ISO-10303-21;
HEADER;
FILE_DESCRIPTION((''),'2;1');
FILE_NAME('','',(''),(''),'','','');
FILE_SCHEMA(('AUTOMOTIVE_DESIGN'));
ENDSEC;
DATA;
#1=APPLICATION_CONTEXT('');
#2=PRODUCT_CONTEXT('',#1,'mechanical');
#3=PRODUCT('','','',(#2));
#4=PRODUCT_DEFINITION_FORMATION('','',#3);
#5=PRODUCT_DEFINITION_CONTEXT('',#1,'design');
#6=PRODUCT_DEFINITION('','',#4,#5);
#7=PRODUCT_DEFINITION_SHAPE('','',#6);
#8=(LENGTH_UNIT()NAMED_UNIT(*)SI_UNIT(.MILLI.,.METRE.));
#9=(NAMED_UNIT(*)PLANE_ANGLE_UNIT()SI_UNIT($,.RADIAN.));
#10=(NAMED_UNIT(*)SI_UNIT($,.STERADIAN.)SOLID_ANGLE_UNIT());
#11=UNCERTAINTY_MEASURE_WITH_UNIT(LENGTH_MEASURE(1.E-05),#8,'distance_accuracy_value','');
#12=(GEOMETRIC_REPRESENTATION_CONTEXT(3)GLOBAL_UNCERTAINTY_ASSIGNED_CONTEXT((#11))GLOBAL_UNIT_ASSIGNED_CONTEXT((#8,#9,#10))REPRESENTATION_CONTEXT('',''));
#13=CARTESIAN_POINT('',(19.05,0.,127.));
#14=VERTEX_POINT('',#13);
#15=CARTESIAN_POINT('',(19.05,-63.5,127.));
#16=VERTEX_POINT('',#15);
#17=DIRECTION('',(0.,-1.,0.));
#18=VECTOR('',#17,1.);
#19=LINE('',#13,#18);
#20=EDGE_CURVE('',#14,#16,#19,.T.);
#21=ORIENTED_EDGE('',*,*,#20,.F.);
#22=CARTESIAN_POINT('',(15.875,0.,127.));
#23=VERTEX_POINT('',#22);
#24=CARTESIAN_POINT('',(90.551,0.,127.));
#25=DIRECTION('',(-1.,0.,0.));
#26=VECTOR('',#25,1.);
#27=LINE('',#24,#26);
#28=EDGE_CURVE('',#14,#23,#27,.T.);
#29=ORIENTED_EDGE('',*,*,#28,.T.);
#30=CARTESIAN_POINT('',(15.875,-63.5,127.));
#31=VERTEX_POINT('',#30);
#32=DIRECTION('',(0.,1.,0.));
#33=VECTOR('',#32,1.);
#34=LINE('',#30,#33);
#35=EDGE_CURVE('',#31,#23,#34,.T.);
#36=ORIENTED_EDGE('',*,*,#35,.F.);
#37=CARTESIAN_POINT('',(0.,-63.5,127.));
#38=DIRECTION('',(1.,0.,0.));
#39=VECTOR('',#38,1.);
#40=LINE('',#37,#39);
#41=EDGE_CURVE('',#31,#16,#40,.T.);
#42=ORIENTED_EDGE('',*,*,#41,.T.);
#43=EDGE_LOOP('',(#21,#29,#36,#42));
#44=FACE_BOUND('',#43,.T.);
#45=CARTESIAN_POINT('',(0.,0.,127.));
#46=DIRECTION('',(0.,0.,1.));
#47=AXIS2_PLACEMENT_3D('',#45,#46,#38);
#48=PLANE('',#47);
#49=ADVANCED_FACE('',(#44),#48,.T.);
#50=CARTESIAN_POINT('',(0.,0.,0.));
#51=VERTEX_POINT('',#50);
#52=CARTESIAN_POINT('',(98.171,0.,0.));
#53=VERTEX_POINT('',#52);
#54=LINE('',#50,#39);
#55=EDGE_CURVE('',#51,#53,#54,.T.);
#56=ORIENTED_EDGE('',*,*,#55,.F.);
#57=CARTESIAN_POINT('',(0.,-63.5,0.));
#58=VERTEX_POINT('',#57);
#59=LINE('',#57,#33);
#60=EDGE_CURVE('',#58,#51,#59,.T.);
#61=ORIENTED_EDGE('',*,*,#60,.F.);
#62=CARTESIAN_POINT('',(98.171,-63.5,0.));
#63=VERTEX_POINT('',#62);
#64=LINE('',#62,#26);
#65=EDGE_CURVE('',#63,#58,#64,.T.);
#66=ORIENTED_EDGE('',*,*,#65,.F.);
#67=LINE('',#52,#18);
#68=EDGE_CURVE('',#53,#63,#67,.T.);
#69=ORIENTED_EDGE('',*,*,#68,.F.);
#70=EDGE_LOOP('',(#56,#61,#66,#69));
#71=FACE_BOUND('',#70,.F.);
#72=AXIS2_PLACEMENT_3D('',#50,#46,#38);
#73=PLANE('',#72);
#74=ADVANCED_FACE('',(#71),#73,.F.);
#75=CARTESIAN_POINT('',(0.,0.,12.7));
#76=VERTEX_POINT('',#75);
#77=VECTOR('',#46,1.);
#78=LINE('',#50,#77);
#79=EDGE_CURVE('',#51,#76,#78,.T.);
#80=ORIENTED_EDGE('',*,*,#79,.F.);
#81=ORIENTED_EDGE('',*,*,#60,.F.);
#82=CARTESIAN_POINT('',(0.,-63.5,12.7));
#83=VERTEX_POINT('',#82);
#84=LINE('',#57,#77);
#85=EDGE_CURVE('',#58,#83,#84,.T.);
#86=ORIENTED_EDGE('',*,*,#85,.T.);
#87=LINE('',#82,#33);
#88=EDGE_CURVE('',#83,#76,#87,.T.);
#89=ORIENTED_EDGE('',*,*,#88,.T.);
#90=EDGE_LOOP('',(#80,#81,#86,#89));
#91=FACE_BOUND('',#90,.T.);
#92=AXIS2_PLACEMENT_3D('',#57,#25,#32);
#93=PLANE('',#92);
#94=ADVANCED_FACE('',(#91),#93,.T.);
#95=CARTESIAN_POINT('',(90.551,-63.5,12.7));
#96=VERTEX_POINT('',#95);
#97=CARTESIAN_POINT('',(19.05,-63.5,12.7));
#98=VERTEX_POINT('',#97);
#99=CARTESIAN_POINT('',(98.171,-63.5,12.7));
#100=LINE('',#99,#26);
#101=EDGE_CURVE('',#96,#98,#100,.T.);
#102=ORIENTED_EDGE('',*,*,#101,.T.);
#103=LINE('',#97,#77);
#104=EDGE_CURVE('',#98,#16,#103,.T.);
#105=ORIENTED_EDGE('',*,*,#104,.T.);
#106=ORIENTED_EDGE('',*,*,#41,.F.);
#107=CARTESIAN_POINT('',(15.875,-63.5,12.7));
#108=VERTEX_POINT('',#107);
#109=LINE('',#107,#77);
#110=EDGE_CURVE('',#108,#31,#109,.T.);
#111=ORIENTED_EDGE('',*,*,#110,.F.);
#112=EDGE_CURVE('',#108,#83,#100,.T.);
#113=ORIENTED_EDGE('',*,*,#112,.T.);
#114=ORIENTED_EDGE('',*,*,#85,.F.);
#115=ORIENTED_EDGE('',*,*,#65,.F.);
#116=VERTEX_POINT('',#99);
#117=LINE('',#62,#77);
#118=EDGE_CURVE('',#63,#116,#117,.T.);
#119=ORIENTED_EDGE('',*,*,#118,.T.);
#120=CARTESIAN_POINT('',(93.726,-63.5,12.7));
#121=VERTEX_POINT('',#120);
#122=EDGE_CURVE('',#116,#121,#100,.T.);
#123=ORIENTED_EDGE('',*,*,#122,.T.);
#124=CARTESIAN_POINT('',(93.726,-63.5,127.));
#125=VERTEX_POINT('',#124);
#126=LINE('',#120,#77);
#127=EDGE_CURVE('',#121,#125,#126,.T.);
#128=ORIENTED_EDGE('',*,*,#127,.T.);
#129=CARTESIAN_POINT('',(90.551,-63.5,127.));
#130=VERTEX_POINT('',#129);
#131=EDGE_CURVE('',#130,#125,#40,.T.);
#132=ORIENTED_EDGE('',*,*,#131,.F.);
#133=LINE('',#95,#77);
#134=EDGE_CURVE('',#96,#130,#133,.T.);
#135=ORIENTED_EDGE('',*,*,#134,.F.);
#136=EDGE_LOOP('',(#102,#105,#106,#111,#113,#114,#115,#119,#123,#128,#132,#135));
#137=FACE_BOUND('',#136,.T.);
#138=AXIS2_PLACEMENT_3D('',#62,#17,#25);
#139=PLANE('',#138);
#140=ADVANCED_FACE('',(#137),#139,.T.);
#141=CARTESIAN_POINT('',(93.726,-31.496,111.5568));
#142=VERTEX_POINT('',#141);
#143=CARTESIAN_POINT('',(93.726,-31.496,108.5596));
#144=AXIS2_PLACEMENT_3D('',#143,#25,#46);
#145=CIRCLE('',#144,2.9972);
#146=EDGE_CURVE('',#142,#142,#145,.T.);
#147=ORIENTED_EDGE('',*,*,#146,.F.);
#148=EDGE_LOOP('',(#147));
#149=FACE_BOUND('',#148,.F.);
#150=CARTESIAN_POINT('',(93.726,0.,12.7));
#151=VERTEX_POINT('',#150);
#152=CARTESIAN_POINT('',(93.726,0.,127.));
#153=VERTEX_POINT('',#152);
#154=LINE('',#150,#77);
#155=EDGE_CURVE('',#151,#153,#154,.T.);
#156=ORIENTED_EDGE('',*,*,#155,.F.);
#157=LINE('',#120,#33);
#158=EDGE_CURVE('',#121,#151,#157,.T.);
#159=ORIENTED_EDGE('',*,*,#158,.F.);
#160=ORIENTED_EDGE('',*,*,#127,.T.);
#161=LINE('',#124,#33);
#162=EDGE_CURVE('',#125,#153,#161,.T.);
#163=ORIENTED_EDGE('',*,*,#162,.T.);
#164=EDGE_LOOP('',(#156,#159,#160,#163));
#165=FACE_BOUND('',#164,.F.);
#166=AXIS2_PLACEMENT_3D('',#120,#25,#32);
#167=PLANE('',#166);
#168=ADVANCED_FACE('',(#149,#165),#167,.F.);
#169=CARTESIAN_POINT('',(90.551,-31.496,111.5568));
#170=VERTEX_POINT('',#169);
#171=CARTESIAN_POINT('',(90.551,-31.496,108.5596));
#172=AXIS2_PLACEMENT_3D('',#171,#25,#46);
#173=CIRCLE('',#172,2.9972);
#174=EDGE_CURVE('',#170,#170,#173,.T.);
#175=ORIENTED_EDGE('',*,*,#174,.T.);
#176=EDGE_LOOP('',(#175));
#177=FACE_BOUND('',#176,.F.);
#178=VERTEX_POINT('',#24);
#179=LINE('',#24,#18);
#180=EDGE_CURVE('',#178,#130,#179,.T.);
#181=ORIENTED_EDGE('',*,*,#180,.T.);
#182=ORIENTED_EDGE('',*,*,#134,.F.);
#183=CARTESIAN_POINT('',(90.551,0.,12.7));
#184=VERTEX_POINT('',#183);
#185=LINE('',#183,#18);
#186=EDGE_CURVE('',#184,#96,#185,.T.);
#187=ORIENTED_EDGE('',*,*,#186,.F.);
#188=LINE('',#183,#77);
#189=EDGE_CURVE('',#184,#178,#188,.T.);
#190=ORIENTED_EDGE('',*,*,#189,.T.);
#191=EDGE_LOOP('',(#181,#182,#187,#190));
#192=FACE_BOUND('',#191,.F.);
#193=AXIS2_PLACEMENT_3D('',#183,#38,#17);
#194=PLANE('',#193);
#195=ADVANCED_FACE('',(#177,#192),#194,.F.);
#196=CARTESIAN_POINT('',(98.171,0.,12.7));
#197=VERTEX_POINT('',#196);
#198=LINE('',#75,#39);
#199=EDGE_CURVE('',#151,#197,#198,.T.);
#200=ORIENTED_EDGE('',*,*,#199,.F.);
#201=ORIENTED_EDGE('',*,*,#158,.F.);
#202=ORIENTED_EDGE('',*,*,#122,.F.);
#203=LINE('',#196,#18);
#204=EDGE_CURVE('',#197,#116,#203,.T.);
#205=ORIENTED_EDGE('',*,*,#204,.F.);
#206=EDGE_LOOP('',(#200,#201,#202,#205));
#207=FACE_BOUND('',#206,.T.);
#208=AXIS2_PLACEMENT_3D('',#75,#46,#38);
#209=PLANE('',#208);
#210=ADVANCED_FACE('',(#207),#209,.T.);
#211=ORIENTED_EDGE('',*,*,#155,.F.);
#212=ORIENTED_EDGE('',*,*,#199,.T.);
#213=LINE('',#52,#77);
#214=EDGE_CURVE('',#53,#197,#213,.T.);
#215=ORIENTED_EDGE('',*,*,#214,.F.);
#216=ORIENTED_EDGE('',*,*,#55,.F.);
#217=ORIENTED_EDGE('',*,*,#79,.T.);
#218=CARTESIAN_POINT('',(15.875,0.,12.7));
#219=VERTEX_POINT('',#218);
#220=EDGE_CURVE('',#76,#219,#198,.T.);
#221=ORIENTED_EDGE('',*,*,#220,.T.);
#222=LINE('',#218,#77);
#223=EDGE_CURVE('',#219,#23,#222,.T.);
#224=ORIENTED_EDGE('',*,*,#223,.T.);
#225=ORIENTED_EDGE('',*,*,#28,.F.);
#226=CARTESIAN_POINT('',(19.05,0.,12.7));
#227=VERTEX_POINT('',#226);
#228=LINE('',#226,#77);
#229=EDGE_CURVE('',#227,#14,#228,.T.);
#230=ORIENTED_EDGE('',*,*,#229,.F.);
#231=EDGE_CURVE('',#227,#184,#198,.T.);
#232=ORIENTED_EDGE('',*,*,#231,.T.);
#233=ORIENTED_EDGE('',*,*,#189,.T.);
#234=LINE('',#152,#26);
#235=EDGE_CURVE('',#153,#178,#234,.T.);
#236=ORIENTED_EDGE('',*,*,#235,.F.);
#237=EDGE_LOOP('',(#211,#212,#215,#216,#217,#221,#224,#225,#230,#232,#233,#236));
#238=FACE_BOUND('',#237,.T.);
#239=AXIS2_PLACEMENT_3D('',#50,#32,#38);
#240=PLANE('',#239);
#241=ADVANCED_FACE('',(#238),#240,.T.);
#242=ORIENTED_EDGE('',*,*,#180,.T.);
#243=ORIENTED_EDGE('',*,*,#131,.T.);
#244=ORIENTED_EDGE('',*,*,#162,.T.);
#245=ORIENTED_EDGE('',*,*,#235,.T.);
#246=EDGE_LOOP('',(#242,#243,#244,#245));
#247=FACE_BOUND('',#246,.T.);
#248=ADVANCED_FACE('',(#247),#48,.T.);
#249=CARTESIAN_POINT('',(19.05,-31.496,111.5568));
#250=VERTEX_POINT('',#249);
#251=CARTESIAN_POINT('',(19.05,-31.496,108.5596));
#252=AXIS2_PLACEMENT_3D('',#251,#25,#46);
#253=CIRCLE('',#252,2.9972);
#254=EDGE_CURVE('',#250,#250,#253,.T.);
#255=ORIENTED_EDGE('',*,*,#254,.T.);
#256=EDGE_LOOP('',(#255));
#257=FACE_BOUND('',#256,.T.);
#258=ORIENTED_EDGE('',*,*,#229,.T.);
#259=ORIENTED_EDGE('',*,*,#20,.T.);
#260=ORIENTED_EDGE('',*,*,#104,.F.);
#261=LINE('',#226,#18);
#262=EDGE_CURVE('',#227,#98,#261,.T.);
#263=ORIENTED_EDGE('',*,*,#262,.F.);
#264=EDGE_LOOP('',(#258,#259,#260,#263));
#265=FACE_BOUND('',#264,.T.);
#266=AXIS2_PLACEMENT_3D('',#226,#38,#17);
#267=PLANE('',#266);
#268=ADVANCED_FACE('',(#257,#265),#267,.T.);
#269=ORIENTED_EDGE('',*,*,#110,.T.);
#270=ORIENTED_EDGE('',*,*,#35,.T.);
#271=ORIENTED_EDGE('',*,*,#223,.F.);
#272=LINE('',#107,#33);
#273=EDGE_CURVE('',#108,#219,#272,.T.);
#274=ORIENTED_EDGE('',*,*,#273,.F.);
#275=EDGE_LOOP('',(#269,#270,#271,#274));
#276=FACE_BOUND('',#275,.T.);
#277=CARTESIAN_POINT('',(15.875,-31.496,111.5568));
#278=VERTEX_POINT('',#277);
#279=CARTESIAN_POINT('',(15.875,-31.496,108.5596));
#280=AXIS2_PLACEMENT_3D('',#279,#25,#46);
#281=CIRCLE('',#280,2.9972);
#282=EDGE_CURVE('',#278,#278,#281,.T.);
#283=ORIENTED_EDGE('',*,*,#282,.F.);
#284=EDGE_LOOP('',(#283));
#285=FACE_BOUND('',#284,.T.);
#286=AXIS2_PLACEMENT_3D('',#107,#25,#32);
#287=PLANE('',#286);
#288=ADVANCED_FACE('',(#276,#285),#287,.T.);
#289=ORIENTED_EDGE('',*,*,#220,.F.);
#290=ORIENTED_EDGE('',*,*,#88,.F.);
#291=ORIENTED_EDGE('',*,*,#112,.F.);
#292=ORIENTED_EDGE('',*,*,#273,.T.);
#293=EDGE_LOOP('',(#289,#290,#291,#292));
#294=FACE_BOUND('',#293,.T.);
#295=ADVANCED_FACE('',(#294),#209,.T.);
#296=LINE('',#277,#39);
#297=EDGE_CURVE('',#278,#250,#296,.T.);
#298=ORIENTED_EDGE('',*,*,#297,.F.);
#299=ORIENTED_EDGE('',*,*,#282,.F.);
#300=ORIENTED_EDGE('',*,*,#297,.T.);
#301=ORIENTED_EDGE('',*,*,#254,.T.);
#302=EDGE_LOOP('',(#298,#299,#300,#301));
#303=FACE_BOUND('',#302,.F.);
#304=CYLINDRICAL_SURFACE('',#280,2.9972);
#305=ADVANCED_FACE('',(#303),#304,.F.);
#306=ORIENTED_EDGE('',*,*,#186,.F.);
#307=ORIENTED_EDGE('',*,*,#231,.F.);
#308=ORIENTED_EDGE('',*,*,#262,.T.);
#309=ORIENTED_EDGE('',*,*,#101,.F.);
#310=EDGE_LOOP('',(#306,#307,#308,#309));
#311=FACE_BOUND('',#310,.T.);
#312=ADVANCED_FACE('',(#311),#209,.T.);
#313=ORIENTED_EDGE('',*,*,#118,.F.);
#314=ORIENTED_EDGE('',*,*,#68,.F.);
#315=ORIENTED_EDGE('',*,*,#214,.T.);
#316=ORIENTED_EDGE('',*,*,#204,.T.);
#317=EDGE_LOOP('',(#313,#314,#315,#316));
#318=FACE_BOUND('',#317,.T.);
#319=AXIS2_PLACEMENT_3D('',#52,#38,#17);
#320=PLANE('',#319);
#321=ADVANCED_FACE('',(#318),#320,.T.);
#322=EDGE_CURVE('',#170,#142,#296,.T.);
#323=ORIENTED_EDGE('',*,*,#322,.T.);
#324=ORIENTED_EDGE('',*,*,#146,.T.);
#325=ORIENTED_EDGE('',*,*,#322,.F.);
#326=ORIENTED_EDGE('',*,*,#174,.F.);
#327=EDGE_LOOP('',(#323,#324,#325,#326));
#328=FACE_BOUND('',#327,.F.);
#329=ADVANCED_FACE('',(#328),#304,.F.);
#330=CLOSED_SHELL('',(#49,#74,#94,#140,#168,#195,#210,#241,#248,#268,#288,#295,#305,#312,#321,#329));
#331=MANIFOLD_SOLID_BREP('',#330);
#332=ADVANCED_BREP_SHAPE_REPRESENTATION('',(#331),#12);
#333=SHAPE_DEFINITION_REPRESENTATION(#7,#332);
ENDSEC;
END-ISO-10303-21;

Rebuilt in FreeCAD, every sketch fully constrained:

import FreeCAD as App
import Part
import Sketcher
from FreeCAD import Vector
Q = App.Units.Quantity

doc = App.newDocument("Part")
body = doc.addObject("PartDesign::Body", "Body")

# Sketch on XY plane
sketch1 = body.newObject("Sketcher::SketchObject", "Sketch")
sketch1.AttachmentSupport = (doc.getObject("XY_Plane"), [""])
sketch1.MapMode = "FlatFace"
sketch1.addGeometry([
    Part.LineSegment(Vector(98.171, 0, 0), Vector(0, 0, 0)),
    Part.LineSegment(Vector(0, 0, 0), Vector(0, -63.5, 0)),
    Part.LineSegment(Vector(0, -63.5, 0), Vector(98.171, -63.5, 0)),
    Part.LineSegment(Vector(98.171, -63.5, 0), Vector(98.171, 0, 0)),
], False)
sketch1.addConstraint([
    Sketcher.Constraint("Coincident", 0, 2, 1, 1),
    Sketcher.Constraint("Coincident", 1, 2, 2, 1),
    Sketcher.Constraint("Coincident", 2, 2, 3, 1),
    Sketcher.Constraint("Coincident", 3, 2, 0, 1),
    Sketcher.Constraint("Horizontal", 0),
    Sketcher.Constraint("Vertical", 1),
    Sketcher.Constraint("Horizontal", 2),
    Sketcher.Constraint("Vertical", 3),
    Sketcher.Constraint("Coincident", 0, 2, -1, 1),
    Sketcher.Constraint("DistanceY", 1, 2, 1, 1, Q("2.5 in")),
    Sketcher.Constraint("DistanceX", 0, 2, 0, 1, Q("3.865 in")),
])
pad1 = body.newObject("PartDesign::Pad", "Pad")
pad1.Profile = sketch1
pad1.Length = Q("0.5 in")

# Sketch on XY plane
sketch2 = body.newObject("Sketcher::SketchObject", "Sketch001")
sketch2.AttachmentSupport = (doc.getObject("XY_Plane"), [""])
sketch2.MapMode = "FlatFace"
sketch2.AttachmentOffset = App.Placement(Vector(0, 0, 0.5 * 25.4), App.Rotation())
sketch2.addGeometry([
    Part.LineSegment(Vector(90.551, 0, 0), Vector(90.551, -63.5, 0)),
    Part.LineSegment(Vector(90.551, -63.5, 0), Vector(93.726, -63.5, 0)),
    Part.LineSegment(Vector(93.726, -63.5, 0), Vector(93.726, 0, 0)),
    Part.LineSegment(Vector(93.726, 0, 0), Vector(90.551, 0, 0)),
], False)
sketch2.addConstraint([
    Sketcher.Constraint("Coincident", 0, 2, 1, 1),
    Sketcher.Constraint("Coincident", 1, 2, 2, 1),
    Sketcher.Constraint("Coincident", 2, 2, 3, 1),
    Sketcher.Constraint("Coincident", 3, 2, 0, 1),
    Sketcher.Constraint("Vertical", 0),
    Sketcher.Constraint("Horizontal", 1),
    Sketcher.Constraint("Vertical", 2),
    Sketcher.Constraint("Horizontal", 3),
    Sketcher.Constraint("PointOnObject", 2, 2, -1),
    Sketcher.Constraint("DistanceX", 1, 1, 1, 2, Q("0.125 in")),
    Sketcher.Constraint("DistanceY", 0, 2, 0, 1, Q("2.5 in")),
    Sketcher.Constraint("DistanceX", -1, 1, 1, 2, Q("3.69 in")),
])
pad2 = body.newObject("PartDesign::Pad", "Pad001")
pad2.Profile = sketch2
pad2.Length = Q("4.5 in")

# Sketch on XY plane
sketch3 = body.newObject("Sketcher::SketchObject", "Sketch002")
sketch3.AttachmentSupport = (doc.getObject("XY_Plane"), [""])
sketch3.MapMode = "FlatFace"
sketch3.AttachmentOffset = App.Placement(Vector(0, 0, 0.5 * 25.4), App.Rotation())
sketch3.addGeometry([
    Part.LineSegment(Vector(19.05, -63.5, 0), Vector(19.05, 0, 0)),
    Part.LineSegment(Vector(19.05, 0, 0), Vector(15.875, 0, 0)),
    Part.LineSegment(Vector(15.875, 0, 0), Vector(15.875, -63.5, 0)),
    Part.LineSegment(Vector(15.875, -63.5, 0), Vector(19.05, -63.5, 0)),
], False)
sketch3.addConstraint([
    Sketcher.Constraint("Coincident", 0, 2, 1, 1),
    Sketcher.Constraint("Coincident", 1, 2, 2, 1),
    Sketcher.Constraint("Coincident", 2, 2, 3, 1),
    Sketcher.Constraint("Coincident", 3, 2, 0, 1),
    Sketcher.Constraint("Vertical", 0),
    Sketcher.Constraint("Horizontal", 1),
    Sketcher.Constraint("Vertical", 2),
    Sketcher.Constraint("Horizontal", 3),
    Sketcher.Constraint("PointOnObject", 0, 2, -1),
    Sketcher.Constraint("DistanceX", 1, 2, 1, 1, Q("0.125 in")),
    Sketcher.Constraint("DistanceY", 0, 1, 0, 2, Q("2.5 in")),
    Sketcher.Constraint("DistanceX", -1, 1, 1, 2, Q("0.625 in")),
])
pad3 = body.newObject("PartDesign::Pad", "Pad002")
pad3.Profile = sketch3
pad3.Length = Q("4.5 in")

# Sketch on YZ plane
sketch4 = body.newObject("Sketcher::SketchObject", "Sketch003")
sketch4.AttachmentSupport = (doc.getObject("YZ_Plane"), [""])
sketch4.MapMode = "FlatFace"
sketch4.AttachmentOffset = App.Placement(Vector(0, 0, 0.625 * 25.4), App.Rotation())
sketch4.addGeometry(Part.Circle(Vector(-31.496, 108.5596, 0), Vector(0, 0, 1), 2.9972), False)
sketch4.addConstraint([
    Sketcher.Constraint("Diameter", 0, Q("0.236 in")),
    Sketcher.Constraint("DistanceX", 0, 3, -1, 1, Q("1.24 in")),
    Sketcher.Constraint("DistanceY", -1, 1, 0, 3, Q("4.274 in")),
])
pocket1 = body.newObject("PartDesign::Pocket", "Pocket")
pocket1.Profile = sketch4
pocket1.Length = Q("4 in")
pocket1.Reversed = True

doc.recompute()
